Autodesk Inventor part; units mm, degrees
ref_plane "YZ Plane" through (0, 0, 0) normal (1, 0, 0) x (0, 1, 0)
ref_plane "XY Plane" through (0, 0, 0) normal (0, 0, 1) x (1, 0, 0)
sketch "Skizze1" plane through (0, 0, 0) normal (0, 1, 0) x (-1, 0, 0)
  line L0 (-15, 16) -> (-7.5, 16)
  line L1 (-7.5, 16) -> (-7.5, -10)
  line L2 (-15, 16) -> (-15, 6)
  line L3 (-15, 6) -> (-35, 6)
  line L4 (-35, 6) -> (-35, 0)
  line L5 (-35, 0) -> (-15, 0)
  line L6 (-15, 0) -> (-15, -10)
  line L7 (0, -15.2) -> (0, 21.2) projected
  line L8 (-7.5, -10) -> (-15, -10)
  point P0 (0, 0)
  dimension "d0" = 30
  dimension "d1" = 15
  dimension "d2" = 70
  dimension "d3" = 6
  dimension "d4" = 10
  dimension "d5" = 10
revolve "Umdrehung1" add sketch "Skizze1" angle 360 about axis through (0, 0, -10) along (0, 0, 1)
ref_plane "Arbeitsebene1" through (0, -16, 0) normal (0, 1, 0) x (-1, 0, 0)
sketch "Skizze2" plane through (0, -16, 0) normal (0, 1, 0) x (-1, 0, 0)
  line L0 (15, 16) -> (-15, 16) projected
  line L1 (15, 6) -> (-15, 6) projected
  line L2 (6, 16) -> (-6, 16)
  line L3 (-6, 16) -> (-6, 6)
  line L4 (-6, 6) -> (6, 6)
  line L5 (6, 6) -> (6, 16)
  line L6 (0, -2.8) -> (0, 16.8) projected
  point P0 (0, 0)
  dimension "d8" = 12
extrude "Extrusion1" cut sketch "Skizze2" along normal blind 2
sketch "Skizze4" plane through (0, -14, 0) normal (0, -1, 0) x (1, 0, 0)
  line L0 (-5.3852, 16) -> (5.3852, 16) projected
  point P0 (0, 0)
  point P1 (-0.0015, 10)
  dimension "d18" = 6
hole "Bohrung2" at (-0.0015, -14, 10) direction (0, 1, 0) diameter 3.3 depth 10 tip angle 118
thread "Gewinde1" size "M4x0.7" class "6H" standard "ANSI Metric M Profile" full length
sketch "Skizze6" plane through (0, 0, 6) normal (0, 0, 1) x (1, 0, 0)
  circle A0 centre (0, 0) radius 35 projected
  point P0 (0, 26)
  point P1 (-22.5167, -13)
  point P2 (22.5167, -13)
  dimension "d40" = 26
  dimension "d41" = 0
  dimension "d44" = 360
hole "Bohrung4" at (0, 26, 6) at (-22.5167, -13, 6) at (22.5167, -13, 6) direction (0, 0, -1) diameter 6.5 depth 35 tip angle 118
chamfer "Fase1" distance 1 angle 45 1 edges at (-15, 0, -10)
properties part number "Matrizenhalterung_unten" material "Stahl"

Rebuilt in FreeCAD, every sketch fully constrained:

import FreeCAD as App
import Part
import Sketcher
Q = App.Units.Quantity


def edges_at(feature, points):
    """Names of the edges that pass closest to the given points."""
    edges = feature.Shape.Edges
    near = lambda p: min(range(len(edges)), key=lambda i: edges[i].distToShape(Part.Vertex(*p))[0])
    return sorted({f"Edge{near(p) + 1}" for p in points})


def add_polygon(sketch, points):
    """Adds a closed chain of lines whose ends are joined by coincident constraints."""
    first, n = sketch.GeometryCount, len(points)
    for a, b in zip(points, points[1:] + points[:1]):
        sketch.addGeometry(Part.LineSegment(App.Vector(*a, 0), App.Vector(*b, 0)), False)
    for i in range(n):
        sketch.addConstraint(Sketcher.Constraint("Coincident", first + i, 2, first + (i + 1) % n, 1))

doc = App.newDocument("Part")
body = doc.addObject("PartDesign::Body", "Body")

sketch1 = body.newObject("Sketcher::SketchObject", "Sketch")
sketch1.AttachmentSupport = (doc.getObject("XZ_Plane"), [""])
sketch1.MapMode = "FlatFace"
add_polygon(sketch1, [(7.5, 16), (15, 16), (15, 6), (35, 6), (35, 0), (15, 0), (15, -10), (7.5, -10)])
sketch1.addConstraint(Sketcher.Constraint("Horizontal", 0))
sketch1.addConstraint(Sketcher.Constraint("Vertical", 1))
sketch1.addConstraint(Sketcher.Constraint("Horizontal", 2))
sketch1.addConstraint(Sketcher.Constraint("Vertical", 3))
sketch1.addConstraint(Sketcher.Constraint("Horizontal", 4))
sketch1.addConstraint(Sketcher.Constraint("Vertical", 5))
sketch1.addConstraint(Sketcher.Constraint("Horizontal", 6))
sketch1.addConstraint(Sketcher.Constraint("Vertical", 7))
sketch1.addConstraint(Sketcher.Constraint("PointOnObject", 3, 2, -1))
sketch1.addConstraint(Sketcher.Constraint("Vertical", 1, 2, 4, 2))
sketch1.addConstraint(Sketcher.Constraint("Equal", 1, 5))
sketch1.addConstraint(Sketcher.Constraint("DistanceY", 1, 2, 1, 1, Q("10 mm")))
sketch1.addConstraint(Sketcher.Constraint("DistanceY", 3, 2, 3, 1, Q("6 mm")))
sketch1.addConstraint(Sketcher.Constraint("DistanceX", -1, 1, 0, 2, Q("15 mm")))
sketch1.addConstraint(Sketcher.Constraint("DistanceX", 2, 1, 2, 2, Q("20 mm")))
sketch1.addConstraint(Sketcher.Constraint("DistanceX", 0, 1, 0, 2, Q("7.5 mm")))
revolution = body.newObject("PartDesign::Revolution", "Revolution")
revolution.Profile = sketch1
revolution.ReferenceAxis = (sketch1, ["V_Axis"])
revolution.Angle = 360

sketch2 = body.newObject("Sketcher::SketchObject", "Sketch001")
sketch2.AttachmentSupport = (doc.getObject("XZ_Plane"), [""])
sketch2.MapMode = "FlatFace"
sketch2.AttachmentOffset = App.Placement(App.Vector(0, 0, 16), App.Rotation())
add_polygon(sketch2, [(-6, 6), (-6, 16), (6, 16), (6, 6)])
sketch2.addConstraint(Sketcher.Constraint("Vertical", 0))
sketch2.addConstraint(Sketcher.Constraint("Horizontal", 1))
sketch2.addConstraint(Sketcher.Constraint("Vertical", 2))
sketch2.addConstraint(Sketcher.Constraint("Horizontal", 3))
sketch2.addConstraint(Sketcher.Constraint("DistanceX", 1, 1, 1, 2, Q("12 mm")))
sketch2.addConstraint(Sketcher.Constraint("DistanceY", 0, 1, 0, 2, Q("10 mm")))
sketch2.addConstraint(Sketcher.Constraint("DistanceX", 0, 2, -1, 1, Q("6 mm")))
sketch2.addConstraint(Sketcher.Constraint("DistanceY", -1, 1, 0, 2, Q("16 mm")))
pocket1 = body.newObject("PartDesign::Pocket", "Pocket")
pocket1.Profile = sketch2
pocket1.Length = 2

sketch3 = body.newObject("Sketcher::SketchObject", "Sketch002")
sketch3.AttachmentSupport = (doc.getObject("XZ_Plane"), [""])
sketch3.MapMode = "FlatFace"
sketch3.AttachmentOffset = App.Placement(App.Vector(0, 0, 14), App.Rotation())
sketch3.addGeometry(Part.Circle(App.Vector(-0.0015, 10, 0), App.Vector(0, 0, 1), 1.65), False)
sketch3.addConstraint(Sketcher.Constraint("Diameter", 0, Q("3.3 mm")))
sketch3.addConstraint(Sketcher.Constraint("DistanceY", -1, 1, 0, 3, Q("10 mm")))
sketch3.addConstraint(Sketcher.Constraint("DistanceX", 0, 3, -1, 1, Q("0.0015 mm")))
doc.recompute()
hole = body.newObject("PartDesign::Hole", "Hole")
hole.Profile = sketch3
hole.ThreadType = "None"
hole.Diameter = 3.3
hole.DepthType = "Dimension"
hole.Depth = 10
hole.DrillPoint = "Angled"
hole.DrillPointAngle = 118

sketch4 = body.newObject("Sketcher::SketchObject", "Sketch003")
sketch4.AttachmentSupport = (doc.getObject("XY_Plane"), [""])
sketch4.MapMode = "FlatFace"
sketch4.AttachmentOffset = App.Placement(App.Vector(0, 0, 6), App.Rotation())
sketch4.addGeometry(Part.Circle(App.Vector(0, 26, 0), App.Vector(0, 0, 1), 3.25), False)
sketch4.addGeometry(Part.Circle(App.Vector(-22.5167, -13, 0), App.Vector(0, 0, 1), 3.25), False)
sketch4.addGeometry(Part.Circle(App.Vector(22.5167, -13, 0), App.Vector(0, 0, 1), 3.25), False)
sketch4.addConstraint(Sketcher.Constraint("Equal", 0, 1))
sketch4.addConstraint(Sketcher.Constraint("Equal", 1, 2))
sketch4.addConstraint(Sketcher.Constraint("Symmetric", 1, 3, 2, 3, -2))
sketch4.addConstraint(Sketcher.Constraint("PointOnObject", 0, 3, -2))
sketch4.addConstraint(Sketcher.Constraint("Diameter", 0, Q("6.5 mm")))
sketch4.addConstraint(Sketcher.Constraint("DistanceY", -1, 1, 0, 3, Q("26 mm")))
sketch4.addConstraint(Sketcher.Constraint("DistanceY", 1, 3, -1, 1, Q("13 mm")))
sketch4.addConstraint(Sketcher.Constraint("DistanceX", 1, 3, -1, 1, Q("22.5167 mm")))
doc.recompute()
hole2 = body.newObject("PartDesign::Hole", "Hole001")
hole2.Profile = sketch4
hole2.ThreadType = "None"
hole2.Diameter = 6.5
hole2.DepthType = "Dimension"
hole2.Depth = 35
hole2.DrillPoint = "Angled"
hole2.DrillPointAngle = 118
doc.recompute()

chamfer = body.newObject("PartDesign::Chamfer", "Chamfer")
chamfer.Base = (hole2, edges_at(hole2, [(-15, 0, -10)]))
chamfer.Size = 1

doc.recompute()
